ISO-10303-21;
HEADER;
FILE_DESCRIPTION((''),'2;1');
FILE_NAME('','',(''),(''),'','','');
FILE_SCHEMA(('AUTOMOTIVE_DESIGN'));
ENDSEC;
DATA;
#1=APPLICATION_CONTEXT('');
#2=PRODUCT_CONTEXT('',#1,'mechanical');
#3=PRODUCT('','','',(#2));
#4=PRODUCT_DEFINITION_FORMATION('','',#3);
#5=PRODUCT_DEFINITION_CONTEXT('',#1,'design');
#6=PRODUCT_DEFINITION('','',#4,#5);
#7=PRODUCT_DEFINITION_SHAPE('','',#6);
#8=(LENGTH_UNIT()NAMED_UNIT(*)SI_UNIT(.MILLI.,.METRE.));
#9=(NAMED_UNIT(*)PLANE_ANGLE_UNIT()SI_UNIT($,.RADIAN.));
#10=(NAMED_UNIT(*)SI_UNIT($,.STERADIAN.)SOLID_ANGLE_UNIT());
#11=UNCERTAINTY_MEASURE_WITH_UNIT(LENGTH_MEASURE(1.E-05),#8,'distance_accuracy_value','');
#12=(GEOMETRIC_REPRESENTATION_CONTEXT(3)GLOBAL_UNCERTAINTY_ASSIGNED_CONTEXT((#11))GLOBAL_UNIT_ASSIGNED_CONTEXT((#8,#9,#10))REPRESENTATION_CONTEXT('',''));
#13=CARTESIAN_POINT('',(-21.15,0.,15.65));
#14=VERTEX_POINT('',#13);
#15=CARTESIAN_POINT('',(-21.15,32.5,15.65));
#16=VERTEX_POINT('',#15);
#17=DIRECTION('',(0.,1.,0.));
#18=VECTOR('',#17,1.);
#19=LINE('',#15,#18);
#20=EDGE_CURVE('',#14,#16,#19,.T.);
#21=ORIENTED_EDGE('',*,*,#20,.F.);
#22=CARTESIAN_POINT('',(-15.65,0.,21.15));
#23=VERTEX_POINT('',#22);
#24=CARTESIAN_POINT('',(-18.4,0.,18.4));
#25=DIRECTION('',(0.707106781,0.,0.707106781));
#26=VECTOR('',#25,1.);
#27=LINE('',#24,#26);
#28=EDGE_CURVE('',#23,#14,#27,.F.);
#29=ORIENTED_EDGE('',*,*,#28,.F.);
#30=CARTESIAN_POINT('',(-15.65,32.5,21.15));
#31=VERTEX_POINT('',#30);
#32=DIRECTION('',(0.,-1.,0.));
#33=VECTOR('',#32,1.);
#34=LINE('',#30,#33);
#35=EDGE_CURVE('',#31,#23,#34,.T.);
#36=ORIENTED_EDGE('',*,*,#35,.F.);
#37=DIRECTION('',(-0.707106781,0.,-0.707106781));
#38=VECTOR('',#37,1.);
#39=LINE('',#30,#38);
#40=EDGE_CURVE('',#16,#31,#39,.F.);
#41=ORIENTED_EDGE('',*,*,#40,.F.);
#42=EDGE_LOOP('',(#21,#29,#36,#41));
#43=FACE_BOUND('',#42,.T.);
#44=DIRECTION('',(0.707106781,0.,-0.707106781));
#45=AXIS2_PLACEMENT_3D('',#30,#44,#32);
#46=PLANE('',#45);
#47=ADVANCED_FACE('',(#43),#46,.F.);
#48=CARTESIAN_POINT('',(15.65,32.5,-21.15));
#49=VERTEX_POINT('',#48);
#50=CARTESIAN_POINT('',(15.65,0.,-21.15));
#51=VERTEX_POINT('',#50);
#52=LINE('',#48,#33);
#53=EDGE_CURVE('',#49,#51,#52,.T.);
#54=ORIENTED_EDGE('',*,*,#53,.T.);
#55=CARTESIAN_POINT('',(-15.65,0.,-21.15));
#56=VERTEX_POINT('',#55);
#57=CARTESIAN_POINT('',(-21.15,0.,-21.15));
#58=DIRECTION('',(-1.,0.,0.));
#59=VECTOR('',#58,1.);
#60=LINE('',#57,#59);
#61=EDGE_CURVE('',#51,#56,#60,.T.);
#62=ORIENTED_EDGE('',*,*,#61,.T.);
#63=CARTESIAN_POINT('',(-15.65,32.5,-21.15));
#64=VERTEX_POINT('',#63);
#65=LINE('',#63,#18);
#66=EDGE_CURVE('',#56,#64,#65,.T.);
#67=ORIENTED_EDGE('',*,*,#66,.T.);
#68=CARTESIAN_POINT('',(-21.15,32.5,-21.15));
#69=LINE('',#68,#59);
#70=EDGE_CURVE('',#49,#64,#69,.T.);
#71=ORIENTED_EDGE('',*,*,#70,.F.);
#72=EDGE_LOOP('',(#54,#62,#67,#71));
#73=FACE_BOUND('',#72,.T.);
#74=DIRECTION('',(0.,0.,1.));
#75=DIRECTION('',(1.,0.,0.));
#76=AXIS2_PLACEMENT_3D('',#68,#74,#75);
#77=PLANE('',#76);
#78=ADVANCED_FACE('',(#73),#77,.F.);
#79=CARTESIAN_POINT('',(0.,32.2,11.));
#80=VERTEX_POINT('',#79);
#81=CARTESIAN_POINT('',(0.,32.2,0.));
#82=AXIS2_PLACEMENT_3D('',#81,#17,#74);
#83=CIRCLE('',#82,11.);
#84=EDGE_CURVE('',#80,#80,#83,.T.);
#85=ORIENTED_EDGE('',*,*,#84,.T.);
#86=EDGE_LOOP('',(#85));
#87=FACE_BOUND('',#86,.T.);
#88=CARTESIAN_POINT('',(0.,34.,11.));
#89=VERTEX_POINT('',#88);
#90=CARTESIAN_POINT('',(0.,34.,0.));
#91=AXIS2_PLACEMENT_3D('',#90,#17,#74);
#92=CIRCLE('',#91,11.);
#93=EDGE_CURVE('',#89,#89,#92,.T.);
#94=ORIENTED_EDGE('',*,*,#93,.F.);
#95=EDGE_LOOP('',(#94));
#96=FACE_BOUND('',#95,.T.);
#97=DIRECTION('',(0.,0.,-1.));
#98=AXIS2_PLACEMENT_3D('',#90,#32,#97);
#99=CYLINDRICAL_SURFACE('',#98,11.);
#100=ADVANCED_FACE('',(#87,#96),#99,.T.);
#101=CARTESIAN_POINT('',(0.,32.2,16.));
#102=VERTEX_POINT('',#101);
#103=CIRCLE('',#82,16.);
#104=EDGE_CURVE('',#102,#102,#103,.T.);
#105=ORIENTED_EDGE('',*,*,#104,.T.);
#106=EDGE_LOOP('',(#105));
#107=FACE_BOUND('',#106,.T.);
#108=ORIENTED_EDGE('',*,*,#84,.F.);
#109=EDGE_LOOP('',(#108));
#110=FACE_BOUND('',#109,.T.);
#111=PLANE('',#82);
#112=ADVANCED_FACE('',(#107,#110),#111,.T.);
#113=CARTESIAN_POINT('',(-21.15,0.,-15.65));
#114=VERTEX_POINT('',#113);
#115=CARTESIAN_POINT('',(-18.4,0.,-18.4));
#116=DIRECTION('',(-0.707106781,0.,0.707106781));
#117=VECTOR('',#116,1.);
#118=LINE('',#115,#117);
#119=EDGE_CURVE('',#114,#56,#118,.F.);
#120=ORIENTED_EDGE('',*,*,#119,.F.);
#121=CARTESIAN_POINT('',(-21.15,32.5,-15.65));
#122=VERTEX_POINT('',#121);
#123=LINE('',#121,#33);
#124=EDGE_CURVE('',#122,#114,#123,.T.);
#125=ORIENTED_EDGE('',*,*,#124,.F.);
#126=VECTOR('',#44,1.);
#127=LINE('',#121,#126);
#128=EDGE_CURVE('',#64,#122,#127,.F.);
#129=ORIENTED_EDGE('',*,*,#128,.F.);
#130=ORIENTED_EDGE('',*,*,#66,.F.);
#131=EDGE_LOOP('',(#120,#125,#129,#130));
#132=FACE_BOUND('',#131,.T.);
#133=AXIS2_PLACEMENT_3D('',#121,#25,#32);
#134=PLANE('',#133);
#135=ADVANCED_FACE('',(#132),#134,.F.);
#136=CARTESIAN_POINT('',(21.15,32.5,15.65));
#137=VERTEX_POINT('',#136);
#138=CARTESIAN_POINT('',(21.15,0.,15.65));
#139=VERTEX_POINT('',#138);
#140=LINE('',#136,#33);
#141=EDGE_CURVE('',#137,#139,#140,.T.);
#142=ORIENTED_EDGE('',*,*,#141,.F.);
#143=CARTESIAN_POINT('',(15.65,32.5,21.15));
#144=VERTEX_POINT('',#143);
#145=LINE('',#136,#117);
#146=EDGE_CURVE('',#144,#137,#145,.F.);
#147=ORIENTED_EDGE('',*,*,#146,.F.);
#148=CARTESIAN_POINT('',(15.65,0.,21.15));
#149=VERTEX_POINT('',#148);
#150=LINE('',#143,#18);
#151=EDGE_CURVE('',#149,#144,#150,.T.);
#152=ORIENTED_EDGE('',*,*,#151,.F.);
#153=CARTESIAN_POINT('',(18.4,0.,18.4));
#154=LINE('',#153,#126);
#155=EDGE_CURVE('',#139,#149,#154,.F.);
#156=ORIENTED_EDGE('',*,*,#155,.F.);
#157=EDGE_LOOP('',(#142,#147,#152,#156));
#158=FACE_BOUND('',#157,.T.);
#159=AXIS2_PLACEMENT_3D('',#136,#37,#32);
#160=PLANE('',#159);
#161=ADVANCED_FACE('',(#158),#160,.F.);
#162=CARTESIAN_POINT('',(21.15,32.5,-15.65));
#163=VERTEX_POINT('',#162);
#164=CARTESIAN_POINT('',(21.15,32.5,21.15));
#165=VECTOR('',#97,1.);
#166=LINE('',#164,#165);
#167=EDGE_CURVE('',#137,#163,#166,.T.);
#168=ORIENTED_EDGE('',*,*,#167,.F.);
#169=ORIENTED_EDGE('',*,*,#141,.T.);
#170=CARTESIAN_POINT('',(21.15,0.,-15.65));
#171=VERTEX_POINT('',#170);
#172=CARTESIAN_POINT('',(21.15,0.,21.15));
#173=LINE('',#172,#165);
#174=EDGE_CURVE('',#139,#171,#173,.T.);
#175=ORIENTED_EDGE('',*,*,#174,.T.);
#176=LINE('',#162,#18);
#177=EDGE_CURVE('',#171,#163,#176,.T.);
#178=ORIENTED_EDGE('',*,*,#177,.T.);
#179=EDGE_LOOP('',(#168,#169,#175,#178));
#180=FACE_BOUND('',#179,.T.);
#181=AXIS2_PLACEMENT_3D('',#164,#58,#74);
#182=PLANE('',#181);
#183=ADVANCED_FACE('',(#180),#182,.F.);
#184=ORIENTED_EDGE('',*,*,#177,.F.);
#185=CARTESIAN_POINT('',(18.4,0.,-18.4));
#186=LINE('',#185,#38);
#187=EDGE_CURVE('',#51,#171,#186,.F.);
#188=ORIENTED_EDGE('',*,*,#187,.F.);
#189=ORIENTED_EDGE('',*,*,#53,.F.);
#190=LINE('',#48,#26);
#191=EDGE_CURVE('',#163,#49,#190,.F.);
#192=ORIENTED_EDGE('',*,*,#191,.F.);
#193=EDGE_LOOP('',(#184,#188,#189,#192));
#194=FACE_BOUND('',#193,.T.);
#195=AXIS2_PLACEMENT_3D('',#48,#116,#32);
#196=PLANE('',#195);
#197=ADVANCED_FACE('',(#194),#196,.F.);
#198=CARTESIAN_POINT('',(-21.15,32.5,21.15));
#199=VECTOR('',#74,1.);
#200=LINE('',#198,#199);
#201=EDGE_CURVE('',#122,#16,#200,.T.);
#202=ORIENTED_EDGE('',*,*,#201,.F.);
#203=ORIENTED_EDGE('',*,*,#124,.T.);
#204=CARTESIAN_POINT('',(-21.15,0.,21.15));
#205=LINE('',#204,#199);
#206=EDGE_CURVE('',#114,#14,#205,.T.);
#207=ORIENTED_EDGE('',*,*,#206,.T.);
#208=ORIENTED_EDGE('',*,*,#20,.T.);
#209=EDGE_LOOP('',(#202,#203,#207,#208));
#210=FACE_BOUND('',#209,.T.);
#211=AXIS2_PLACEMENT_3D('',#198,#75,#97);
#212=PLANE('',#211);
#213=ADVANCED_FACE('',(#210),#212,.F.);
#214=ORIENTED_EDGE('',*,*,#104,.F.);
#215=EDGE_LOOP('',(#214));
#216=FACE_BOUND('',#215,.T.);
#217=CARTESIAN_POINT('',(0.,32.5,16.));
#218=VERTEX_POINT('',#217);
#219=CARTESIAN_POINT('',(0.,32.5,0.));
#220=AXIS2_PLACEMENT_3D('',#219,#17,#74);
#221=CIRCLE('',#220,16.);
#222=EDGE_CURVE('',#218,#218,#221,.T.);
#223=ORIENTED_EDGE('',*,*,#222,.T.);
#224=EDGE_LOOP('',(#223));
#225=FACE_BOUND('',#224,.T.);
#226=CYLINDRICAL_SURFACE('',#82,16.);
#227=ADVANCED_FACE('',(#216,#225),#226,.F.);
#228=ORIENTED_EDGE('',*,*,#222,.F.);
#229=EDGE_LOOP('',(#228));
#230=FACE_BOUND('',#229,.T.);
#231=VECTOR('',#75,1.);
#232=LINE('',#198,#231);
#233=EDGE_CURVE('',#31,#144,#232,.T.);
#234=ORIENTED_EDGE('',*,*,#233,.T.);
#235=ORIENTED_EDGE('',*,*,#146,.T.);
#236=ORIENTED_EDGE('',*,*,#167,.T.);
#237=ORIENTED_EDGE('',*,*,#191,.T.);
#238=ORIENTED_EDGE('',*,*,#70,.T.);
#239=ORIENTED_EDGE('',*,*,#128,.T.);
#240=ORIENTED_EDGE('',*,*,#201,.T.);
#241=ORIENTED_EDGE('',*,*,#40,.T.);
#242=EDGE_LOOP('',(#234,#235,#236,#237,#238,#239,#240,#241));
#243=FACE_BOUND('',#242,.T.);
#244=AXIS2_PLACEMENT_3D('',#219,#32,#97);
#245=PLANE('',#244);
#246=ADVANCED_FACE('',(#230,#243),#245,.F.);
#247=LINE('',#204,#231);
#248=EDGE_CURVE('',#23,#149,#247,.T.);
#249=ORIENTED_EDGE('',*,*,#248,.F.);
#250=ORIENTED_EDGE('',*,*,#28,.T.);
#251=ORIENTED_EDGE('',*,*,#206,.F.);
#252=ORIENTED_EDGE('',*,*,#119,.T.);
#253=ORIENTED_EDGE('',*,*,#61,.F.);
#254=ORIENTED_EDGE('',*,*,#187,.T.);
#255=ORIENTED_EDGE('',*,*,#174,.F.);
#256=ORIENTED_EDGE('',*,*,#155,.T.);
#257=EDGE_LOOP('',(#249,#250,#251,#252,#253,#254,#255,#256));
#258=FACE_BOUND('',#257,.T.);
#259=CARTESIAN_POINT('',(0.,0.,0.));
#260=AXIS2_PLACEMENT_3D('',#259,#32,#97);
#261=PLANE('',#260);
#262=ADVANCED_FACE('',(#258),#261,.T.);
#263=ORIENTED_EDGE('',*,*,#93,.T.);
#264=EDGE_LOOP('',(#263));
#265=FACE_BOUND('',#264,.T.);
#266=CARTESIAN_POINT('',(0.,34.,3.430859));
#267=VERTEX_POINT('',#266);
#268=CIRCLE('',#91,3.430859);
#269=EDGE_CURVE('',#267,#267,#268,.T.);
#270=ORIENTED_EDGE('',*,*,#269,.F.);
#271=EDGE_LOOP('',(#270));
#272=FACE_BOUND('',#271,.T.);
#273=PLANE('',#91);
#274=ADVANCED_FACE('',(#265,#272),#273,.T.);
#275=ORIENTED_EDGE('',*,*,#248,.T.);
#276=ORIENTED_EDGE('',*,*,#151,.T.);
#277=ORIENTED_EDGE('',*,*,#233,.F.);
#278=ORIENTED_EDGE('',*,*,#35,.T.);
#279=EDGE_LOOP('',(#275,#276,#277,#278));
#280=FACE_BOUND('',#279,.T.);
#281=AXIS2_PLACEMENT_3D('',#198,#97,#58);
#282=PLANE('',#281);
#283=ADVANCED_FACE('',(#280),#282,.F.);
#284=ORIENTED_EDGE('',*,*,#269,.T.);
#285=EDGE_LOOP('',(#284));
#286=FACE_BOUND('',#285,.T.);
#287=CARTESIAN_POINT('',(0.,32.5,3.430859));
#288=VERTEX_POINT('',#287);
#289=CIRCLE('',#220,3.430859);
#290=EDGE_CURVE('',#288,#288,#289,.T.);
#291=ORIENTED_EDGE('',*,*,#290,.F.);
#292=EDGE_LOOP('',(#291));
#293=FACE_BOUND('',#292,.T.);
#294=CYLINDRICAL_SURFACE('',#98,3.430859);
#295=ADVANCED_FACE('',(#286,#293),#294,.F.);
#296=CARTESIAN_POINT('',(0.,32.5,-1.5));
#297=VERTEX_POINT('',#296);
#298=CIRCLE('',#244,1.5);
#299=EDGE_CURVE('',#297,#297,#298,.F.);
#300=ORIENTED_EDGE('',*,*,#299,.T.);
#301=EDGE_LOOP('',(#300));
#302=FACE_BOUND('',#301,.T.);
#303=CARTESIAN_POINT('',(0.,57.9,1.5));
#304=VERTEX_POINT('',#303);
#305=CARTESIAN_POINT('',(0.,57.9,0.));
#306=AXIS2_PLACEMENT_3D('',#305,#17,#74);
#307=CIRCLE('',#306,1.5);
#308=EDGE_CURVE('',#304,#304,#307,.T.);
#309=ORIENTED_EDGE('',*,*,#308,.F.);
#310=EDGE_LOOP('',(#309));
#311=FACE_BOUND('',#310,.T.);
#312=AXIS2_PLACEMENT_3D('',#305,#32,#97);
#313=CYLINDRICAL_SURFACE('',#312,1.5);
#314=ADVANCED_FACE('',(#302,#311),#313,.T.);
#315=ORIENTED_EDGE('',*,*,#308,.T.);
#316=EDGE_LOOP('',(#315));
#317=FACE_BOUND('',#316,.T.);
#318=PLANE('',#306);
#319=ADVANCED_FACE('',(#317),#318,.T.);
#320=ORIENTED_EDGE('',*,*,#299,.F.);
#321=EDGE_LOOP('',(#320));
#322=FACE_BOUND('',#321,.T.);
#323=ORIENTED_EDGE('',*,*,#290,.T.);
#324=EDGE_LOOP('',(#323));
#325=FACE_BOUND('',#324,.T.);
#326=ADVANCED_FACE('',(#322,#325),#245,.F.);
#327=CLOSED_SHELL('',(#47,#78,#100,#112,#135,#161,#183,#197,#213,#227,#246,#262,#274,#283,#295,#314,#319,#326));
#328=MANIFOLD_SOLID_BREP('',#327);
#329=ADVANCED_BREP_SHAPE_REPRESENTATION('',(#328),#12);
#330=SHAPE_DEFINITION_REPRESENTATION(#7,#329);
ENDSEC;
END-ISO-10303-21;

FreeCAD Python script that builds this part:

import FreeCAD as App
import Part
import Sketcher
from FreeCAD import Vector
Q = App.Units.Quantity


def edges_at(feature, points):
    """Names of the edges that pass closest to the given points."""
    edges = feature.Shape.Edges
    near = lambda p: min(range(len(edges)), key=lambda i: edges[i].distToShape(Part.Vertex(*p))[0])
    return sorted({f"Edge{near(p) + 1}" for p in points})


def add_polygon(sketch, points):
    """Adds a closed chain of lines whose ends are joined by coincident constraints."""
    first, n = sketch.GeometryCount, len(points)
    for a, b in zip(points, points[1:] + points[:1]):
        sketch.addGeometry(Part.LineSegment(App.Vector(*a, 0), App.Vector(*b, 0)), False)
    for i in range(n):
        sketch.addConstraint(Sketcher.Constraint("Coincident", first + i, 2, first + (i + 1) % n, 1))

doc = App.newDocument("Part")
body = doc.addObject("PartDesign::Body", "Body")

# Sketch on XZ plane
sketch1 = doc.addObject("Sketcher::SketchObject", "Sketch")
body.addObject(sketch1)
sketch1.AttachmentSupport = (doc.XZ_Plane, [""])
sketch1.MapMode = "FlatFace"
add_polygon(sketch1, [(-21, -21), (-21, 21), (21, 21), (21, -21)])  # lines 0-3
sketch1.addConstraint([
    Sketcher.Constraint("Vertical", 0),
    Sketcher.Constraint("Horizontal", 1),
    Sketcher.Constraint("Vertical", 2),
    Sketcher.Constraint("Horizontal", 3),
    Sketcher.Constraint("Symmetric", 0, 2, 2, 2, -1, 1),
    Sketcher.Constraint("Equal", 3, 0),
    Sketcher.Constraint("DistanceX", 1, 1, 1, 2, Q("42.3 mm")),
])
pad1 = doc.addObject("PartDesign::Pad", "Pad")
body.addObject(pad1)
pad1.Profile = sketch1
pad1.Length = 32.5
pad1.Reversed = True
doc.recompute()

chamfer = doc.addObject("PartDesign::Chamfer", "Chamfer")
body.addObject(chamfer)
chamfer.Base = (pad1, edges_at(pad1, [
    (21.15, 16.25, 21.15),
    (-21.15, 16.25, 21.15),
    (-21.15, 16.25, -21.15),
    (21.15, 16.25, -21.15),
]))
chamfer.Size = 5.5

# Sketch on XZ plane
sketch2 = doc.addObject("Sketcher::SketchObject", "Sketch001")
body.addObject(sketch2)
sketch2.AttachmentSupport = (doc.XZ_Plane, [""])
sketch2.MapMode = "FlatFace"
sketch2.AttachmentOffset = App.Placement(Vector(0, 0, -32.5), App.Rotation())
sketch2.addGeometry([
    Part.Circle(Vector(0, 0, 0), Vector(0, 0, 1), 11),
    Part.Circle(Vector(0, 0, 0), Vector(0, 0, 1), 3.4),
], False)
sketch2.addConstraint([
    Sketcher.Constraint("Coincident", 0, 3, -1, 1),
    Sketcher.Constraint("Coincident", 1, 3, -1, 1),
    Sketcher.Constraint("Diameter", 0, Q("22 mm")),
    Sketcher.Constraint("Diameter", 1, Q("6.861717 mm")),
])
pad2 = doc.addObject("PartDesign::Pad", "Pad001")
body.addObject(pad2)
pad2.Profile = sketch2
pad2.Length = 1.5
pad2.Reversed = True

# Sketch on XZ plane
sketch3 = doc.addObject("Sketcher::SketchObject", "Sketch002")
body.addObject(sketch3)
sketch3.AttachmentSupport = (doc.XZ_Plane, [""])
sketch3.MapMode = "FlatFace"
sketch3.AttachmentOffset = App.Placement(Vector(0, 0, -32.5), App.Rotation())
sketch3.addGeometry([
    Part.Circle(Vector(0, 0, 0), Vector(0, 0, 1), 16),
    Part.Circle(Vector(0, 0, 0), Vector(0, 0, 1), 11),
], False)
sketch3.addConstraint([
    Sketcher.Constraint("Coincident", 0, 3, -1, 1),
    Sketcher.Constraint("Coincident", 1, 3, -1, 1),
    Sketcher.Constraint("Diameter", 0, Q("32 mm")),
    Sketcher.Constraint("Diameter", 1, Q("22 mm")),
])
pocket1 = doc.addObject("PartDesign::Pocket", "Pocket")
body.addObject(pocket1)
pocket1.Profile = sketch3
pocket1.Length = 0.3
pocket1.Reversed = True

# Sketch on XZ plane
sketch4 = doc.addObject("Sketcher::SketchObject", "Sketch003")
body.addObject(sketch4)
sketch4.AttachmentSupport = (doc.XZ_Plane, [""])
sketch4.MapMode = "FlatFace"
sketch4.AttachmentOffset = App.Placement(Vector(0, 0, -32.5), App.Rotation())
sketch4.addGeometry(Part.Circle(Vector(0, 0, 0), Vector(0, 0, 1), 1.5), False)
sketch4.addConstraint([
    Sketcher.Constraint("Coincident", 0, 3, -1, 1),
    Sketcher.Constraint("Diameter", 0, Q("3 mm")),
])
pad3 = doc.addObject("PartDesign::Pad", "Pad002")
body.addObject(pad3)
pad3.Profile = sketch4
pad3.Length = 25.4
pad3.Reversed = True

doc.recompute()
